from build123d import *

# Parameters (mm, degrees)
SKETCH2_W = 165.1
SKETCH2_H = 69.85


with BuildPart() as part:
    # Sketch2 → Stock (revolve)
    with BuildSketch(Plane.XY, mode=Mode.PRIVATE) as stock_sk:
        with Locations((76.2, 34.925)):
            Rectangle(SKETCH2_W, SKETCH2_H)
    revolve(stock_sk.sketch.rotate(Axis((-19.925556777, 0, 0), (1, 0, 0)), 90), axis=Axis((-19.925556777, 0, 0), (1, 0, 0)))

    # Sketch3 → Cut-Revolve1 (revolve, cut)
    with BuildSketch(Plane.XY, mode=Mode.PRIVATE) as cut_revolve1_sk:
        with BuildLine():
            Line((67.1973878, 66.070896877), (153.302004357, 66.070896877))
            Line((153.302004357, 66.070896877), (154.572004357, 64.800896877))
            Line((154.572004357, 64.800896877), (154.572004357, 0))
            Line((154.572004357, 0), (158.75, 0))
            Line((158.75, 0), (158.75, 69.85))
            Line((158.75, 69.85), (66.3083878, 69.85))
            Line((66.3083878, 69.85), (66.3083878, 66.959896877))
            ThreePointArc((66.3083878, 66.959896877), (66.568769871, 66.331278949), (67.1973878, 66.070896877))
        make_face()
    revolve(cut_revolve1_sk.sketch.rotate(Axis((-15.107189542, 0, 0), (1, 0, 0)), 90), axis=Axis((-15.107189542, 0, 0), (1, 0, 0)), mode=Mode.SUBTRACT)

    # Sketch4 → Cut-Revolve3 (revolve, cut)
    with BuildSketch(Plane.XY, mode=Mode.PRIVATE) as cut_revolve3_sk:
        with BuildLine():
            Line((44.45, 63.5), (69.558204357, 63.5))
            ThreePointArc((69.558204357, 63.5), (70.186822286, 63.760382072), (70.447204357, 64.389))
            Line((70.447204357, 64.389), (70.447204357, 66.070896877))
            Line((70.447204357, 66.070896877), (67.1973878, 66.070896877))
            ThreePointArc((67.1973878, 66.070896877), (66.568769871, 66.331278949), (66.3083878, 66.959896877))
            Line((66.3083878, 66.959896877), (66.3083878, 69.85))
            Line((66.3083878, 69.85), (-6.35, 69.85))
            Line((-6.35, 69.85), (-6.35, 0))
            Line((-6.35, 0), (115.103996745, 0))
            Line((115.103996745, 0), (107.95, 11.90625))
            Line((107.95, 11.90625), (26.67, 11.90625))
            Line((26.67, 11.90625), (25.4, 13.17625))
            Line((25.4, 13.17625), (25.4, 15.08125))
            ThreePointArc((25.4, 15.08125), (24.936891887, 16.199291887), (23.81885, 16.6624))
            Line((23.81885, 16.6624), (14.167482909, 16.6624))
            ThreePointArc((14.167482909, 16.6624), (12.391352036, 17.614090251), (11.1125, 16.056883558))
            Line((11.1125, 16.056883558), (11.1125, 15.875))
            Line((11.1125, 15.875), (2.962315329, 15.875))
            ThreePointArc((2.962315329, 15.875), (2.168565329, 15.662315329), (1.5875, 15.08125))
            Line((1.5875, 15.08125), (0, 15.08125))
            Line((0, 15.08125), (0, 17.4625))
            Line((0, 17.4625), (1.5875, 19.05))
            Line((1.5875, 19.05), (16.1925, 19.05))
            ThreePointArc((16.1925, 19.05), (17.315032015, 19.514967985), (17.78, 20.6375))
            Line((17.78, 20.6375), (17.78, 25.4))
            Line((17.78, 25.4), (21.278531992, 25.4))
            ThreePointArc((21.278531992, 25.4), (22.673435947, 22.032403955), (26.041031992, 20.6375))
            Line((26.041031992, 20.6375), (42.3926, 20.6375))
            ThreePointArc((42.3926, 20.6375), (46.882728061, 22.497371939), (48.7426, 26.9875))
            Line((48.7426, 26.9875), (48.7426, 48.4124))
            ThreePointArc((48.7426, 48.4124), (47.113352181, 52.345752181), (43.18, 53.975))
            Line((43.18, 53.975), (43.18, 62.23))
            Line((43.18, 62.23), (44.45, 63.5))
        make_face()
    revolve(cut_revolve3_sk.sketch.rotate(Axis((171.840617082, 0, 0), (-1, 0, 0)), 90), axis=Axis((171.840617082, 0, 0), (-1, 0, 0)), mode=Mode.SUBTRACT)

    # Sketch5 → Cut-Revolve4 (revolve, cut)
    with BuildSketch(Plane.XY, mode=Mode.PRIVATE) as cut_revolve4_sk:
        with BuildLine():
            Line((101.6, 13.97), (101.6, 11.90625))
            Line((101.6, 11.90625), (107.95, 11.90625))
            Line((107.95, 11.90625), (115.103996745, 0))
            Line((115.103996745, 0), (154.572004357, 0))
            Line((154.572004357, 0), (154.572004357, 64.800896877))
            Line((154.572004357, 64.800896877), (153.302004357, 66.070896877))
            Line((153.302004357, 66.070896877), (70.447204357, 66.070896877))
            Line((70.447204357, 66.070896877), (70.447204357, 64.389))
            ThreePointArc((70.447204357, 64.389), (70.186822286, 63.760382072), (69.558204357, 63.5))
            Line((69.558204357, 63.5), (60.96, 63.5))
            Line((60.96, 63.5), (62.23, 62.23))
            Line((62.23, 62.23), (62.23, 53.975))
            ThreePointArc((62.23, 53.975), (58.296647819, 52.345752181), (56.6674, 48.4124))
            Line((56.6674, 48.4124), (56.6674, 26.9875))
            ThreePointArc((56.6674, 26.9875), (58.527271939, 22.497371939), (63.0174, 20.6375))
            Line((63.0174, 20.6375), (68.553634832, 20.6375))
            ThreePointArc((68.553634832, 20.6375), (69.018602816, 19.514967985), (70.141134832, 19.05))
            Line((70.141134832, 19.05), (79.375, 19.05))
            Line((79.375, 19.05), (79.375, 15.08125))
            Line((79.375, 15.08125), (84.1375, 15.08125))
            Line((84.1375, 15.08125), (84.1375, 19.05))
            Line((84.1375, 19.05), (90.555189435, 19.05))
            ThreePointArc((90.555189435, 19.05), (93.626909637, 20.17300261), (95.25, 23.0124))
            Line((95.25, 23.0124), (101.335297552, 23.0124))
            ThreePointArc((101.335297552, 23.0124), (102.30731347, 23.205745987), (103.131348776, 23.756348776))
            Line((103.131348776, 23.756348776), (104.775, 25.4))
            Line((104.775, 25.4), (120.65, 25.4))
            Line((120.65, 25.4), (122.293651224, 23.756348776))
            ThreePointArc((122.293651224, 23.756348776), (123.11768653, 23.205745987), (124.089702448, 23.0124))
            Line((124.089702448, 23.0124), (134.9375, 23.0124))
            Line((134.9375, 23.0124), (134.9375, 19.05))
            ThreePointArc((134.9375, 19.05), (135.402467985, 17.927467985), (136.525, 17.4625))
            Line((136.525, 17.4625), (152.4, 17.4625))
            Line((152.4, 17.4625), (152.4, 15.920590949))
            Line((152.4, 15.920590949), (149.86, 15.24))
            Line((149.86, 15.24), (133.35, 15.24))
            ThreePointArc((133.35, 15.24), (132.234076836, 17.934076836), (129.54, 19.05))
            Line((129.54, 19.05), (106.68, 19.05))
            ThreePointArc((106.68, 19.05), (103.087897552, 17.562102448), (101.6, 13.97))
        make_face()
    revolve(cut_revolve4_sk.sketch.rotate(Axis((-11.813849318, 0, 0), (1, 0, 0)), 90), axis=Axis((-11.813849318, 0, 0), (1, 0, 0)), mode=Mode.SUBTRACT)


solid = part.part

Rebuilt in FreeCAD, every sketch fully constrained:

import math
import FreeCAD as App
import Part
import Sketcher
Q = App.Units.Quantity

doc = App.newDocument("Part")
body = doc.addObject("PartDesign::Body", "Body")

sketch1 = body.newObject("Sketcher::SketchObject", "Sketch")
sketch1.AttachmentSupport = (doc.getObject("XY_Plane"), [""])
sketch1.MapMode = "FlatFace"
sketch1.addGeometry([
    Part.LineSegment(App.Vector(-6, 70, 0), App.Vector(-6, 0, 0)),
    Part.LineSegment(App.Vector(-6, 0, 0), App.Vector(159, 0, 0)),
    Part.LineSegment(App.Vector(159, 0, 0), App.Vector(159, 70, 0)),
    Part.LineSegment(App.Vector(159, 70, 0), App.Vector(-6, 70, 0)),
], False)
sketch1.addConstraint([
    Sketcher.Constraint("Coincident", 0, 2, 1, 1),
    Sketcher.Constraint("Coincident", 1, 2, 2, 1),
    Sketcher.Constraint("Coincident", 2, 2, 3, 1),
    Sketcher.Constraint("Coincident", 3, 2, 0, 1),
    Sketcher.Constraint("Vertical", 0),
    Sketcher.Constraint("Horizontal", 1),
    Sketcher.Constraint("Vertical", 2),
    Sketcher.Constraint("Horizontal", 3),
    Sketcher.Constraint("PointOnObject", 0, 2, -1),
    Sketcher.Constraint("DistanceX", 1, 1, 1, 2, Q("6.5 in")),
    Sketcher.Constraint("DistanceY", 0, 2, 0, 1, Q("2.75 in")),
    Sketcher.Constraint("DistanceX", 0, 2, -1, 1, Q("0.25 in")),
])
revolution = body.newObject("PartDesign::Revolution", "Revolution")
revolution.Profile = sketch1
revolution.ReferenceAxis = (sketch1, ["H_Axis"])
revolution.Angle = 360

sketch2 = body.newObject("Sketcher::SketchObject", "Sketch001")
sketch2.AttachmentSupport = (doc.getObject("XY_Plane"), [""])
sketch2.MapMode = "FlatFace"
sketch2.addGeometry([
    Part.LineSegment(App.Vector(67.2, 66.1, 0), App.Vector(153.3, 66.1, 0)),
    Part.LineSegment(App.Vector(153.3, 66.1, 0), App.Vector(154.6, 64.8, 0)),
    Part.LineSegment(App.Vector(154.6, 64.8, 0), App.Vector(154.6, 0, 0)),
    Part.LineSegment(App.Vector(154.6, 0, 0), App.Vector(158.8, 0, 0)),
    Part.LineSegment(App.Vector(158.8, 0, 0), App.Vector(158.8, 69.8, 0)),
    Part.LineSegment(App.Vector(158.8, 69.8, 0), App.Vector(66.3, 69.8, 0)),
    Part.LineSegment(App.Vector(66.3, 69.8, 0), App.Vector(66.3, 67, 0)),
    Part.ArcOfCircle(Part.Circle(App.Vector(67.2, 67, 0), App.Vector(0, 0, 1), 0.9), math.radians(180), math.radians(270)),
], False)
sketch2.addConstraint([
    Sketcher.Constraint("Coincident", 0, 2, 1, 1),
    Sketcher.Constraint("Coincident", 1, 2, 2, 1),
    Sketcher.Constraint("Coincident", 2, 2, 3, 1),
    Sketcher.Constraint("Coincident", 3, 2, 4, 1),
    Sketcher.Constraint("Coincident", 4, 2, 5, 1),
    Sketcher.Constraint("Coincident", 5, 2, 6, 1),
    Sketcher.Constraint("Tangent", 6, 2, 7, 1),
    Sketcher.Constraint("Tangent", 7, 2, 0, 1),
    Sketcher.Constraint("Horizontal", 0),
    Sketcher.Constraint("Vertical", 2),
    Sketcher.Constraint("Horizontal", 3),
    Sketcher.Constraint("Vertical", 4),
    Sketcher.Constraint("Horizontal", 5),
    Sketcher.Constraint("Vertical", 6),
    Sketcher.Constraint("PointOnObject", 2, 2, -1),
    Sketcher.Constraint("Angle", 1, Q("-45 deg")),
    Sketcher.Constraint("Radius", 7, Q("0.035 in")),
    Sketcher.Constraint("DistanceY", 4, 1, 4, 2, Q("2.75 in")),
    Sketcher.Constraint("DistanceX", -1, 1, 3, 2, Q("6.25 in")),
    Sketcher.Constraint("DistanceX", 0, 2, 1, 2, Q("0.05 in")),
    Sketcher.Constraint("DistanceX", 0, 1, 0, 2, 86.104617),
    Sketcher.Constraint("DistanceX", 3, 1, 3, 2, 4.177996),
    Sketcher.Constraint("DistanceY", 2, 2, 2, 1, 64.800897),
])
groove = body.newObject("PartDesign::Groove", "Groove")
groove.Profile = sketch2
groove.ReferenceAxis = (sketch2, ["H_Axis"])
groove.Angle = 360

sketch3 = body.newObject("Sketcher::SketchObject", "Sketch002")
sketch3.AttachmentSupport = (doc.getObject("XY_Plane"), [""])
sketch3.MapMode = "FlatFace"
sketch3.addGeometry([
    Part.LineSegment(App.Vector(44.45, 63.5, 0), App.Vector(69.56, 63.5, 0)),
    Part.ArcOfCircle(Part.Circle(App.Vector(69.56, 64.39, 0), App.Vector(0, 0, 1), 0.89), math.radians(-90), math.radians(0)),
    Part.LineSegment(App.Vector(70.45, 64.39, 0), App.Vector(70.45, 66.07, 0)),
    Part.LineSegment(App.Vector(70.45, 66.07, 0), App.Vector(67.2, 66.07, 0)),
    Part.ArcOfCircle(Part.Circle(App.Vector(67.2, 66.96, 0), App.Vector(0, 0, 1), 0.89), math.radians(180), math.radians(270)),
    Part.LineSegment(App.Vector(66.31, 66.96, 0), App.Vector(66.31, 69.85, 0)),
    Part.LineSegment(App.Vector(66.31, 69.85, 0), App.Vector(-6.35, 69.85, 0)),
    Part.LineSegment(App.Vector(-6.35, 69.85, 0), App.Vector(-6.35, 0, 0)),
    Part.LineSegment(App.Vector(-6.35, 0, 0), App.Vector(115.1, 0, 0)),
    Part.LineSegment(App.Vector(115.1, 0, 0), App.Vector(107.95, 11.91, 0)),
    Part.LineSegment(App.Vector(107.95, 11.91, 0), App.Vector(26.67, 11.91, 0)),
    Part.LineSegment(App.Vector(26.67, 11.91, 0), App.Vector(25.4, 13.18, 0)),
    Part.LineSegment(App.Vector(25.4, 13.18, 0), App.Vector(25.4, 15.08, 0)),
    Part.ArcOfCircle(Part.Circle(App.Vector(23.82, 15.08, 0), App.Vector(0, 0, 1), 1.58), math.radians(0), math.radians(90)),
    Part.LineSegment(App.Vector(23.82, 16.66, 0), App.Vector(14.17, 16.66, 0)),
    Part.ArcOfCircle(Part.Circle(App.Vector(12.7, 16.06, 0), App.Vector(0, 0, 1), 1.59), math.radians(22), math.radians(180)),
    Part.LineSegment(App.Vector(11.11, 16.06, 0), App.Vector(11.11, 15.88, 0)),
    Part.LineSegment(App.Vector(11.11, 15.88, 0), App.Vector(2.96, 15.88, 0)),
    Part.ArcOfCircle(Part.Circle(App.Vector(2.96, 14.29, 0), App.Vector(0, 0, 1), 1.59), math.radians(90), math.radians(150)),
    Part.LineSegment(App.Vector(1.59, 15.08, 0), App.Vector(0, 15.08, 0)),
    Part.LineSegment(App.Vector(0, 15.08, 0), App.Vector(0, 17.46, 0)),
    Part.LineSegment(App.Vector(0, 17.46, 0), App.Vector(1.59, 19.05, 0)),
    Part.LineSegment(App.Vector(1.59, 19.05, 0), App.Vector(16.19, 19.05, 0)),
    Part.ArcOfCircle(Part.Circle(App.Vector(16.19, 20.64, 0), App.Vector(0, 0, 1), 1.59), math.radians(-90), math.radians(0)),
    Part.LineSegment(App.Vector(17.78, 20.64, 0), App.Vector(17.78, 25.4, 0)),
    Part.LineSegment(App.Vector(17.78, 25.4, 0), App.Vector(21.28, 25.4, 0)),
    Part.ArcOfCircle(Part.Circle(App.Vector(26.04, 25.4, 0), App.Vector(0, 0, 1), 4.76), math.radians(-180), math.radians(-90)),
    Part.LineSegment(App.Vector(26.04, 20.64, 0), App.Vector(42.39, 20.64, 0)),
    Part.ArcOfCircle(Part.Circle(App.Vector(42.39, 26.99, 0), App.Vector(0, 0, 1), 6.35), math.radians(-90), math.radians(0)),
    Part.LineSegment(App.Vector(48.74, 26.99, 0), App.Vector(48.74, 48.41, 0)),
    Part.ArcOfCircle(Part.Circle(App.Vector(43.18, 48.41, 0), App.Vector(0, 0, 1), 5.56), math.radians(0), math.radians(90)),
    Part.LineSegment(App.Vector(43.18, 53.98, 0), App.Vector(43.18, 62.23, 0)),
    Part.LineSegment(App.Vector(43.18, 62.23, 0), App.Vector(44.45, 63.5, 0)),
], False)
sketch3.addConstraint([
    Sketcher.Constraint("Tangent", 0, 2, 1, 1),
    Sketcher.Constraint("Tangent", 1, 2, 2, 1),
    Sketcher.Constraint("Coincident", 2, 2, 3, 1),
    Sketcher.Constraint("Tangent", 3, 2, 4, 2),
    Sketcher.Constraint("Tangent", 4, 1, 5, 1),
    Sketcher.Constraint("Coincident", 5, 2, 6, 1),
    Sketcher.Constraint("Coincident", 6, 2, 7, 1),
    Sketcher.Constraint("Coincident", 7, 2, 8, 1),
    Sketcher.Constraint("Coincident", 8, 2, 9, 1),
    Sketcher.Constraint("Coincident", 9, 2, 10, 1),
    Sketcher.Constraint("Coincident", 10, 2, 11, 1),
    Sketcher.Constraint("Coincident", 11, 2, 12, 1),
    Sketcher.Constraint("Tangent", 12, 2, 13, 1),
    Sketcher.Constraint("Tangent", 13, 2, 14, 1),
    Sketcher.Constraint("Coincident", 14, 2, 15, 1),
    Sketcher.Constraint("Tangent", 15, 2, 16, 1),
    Sketcher.Constraint("Coincident", 16, 2, 17, 1),
    Sketcher.Constraint("Tangent", 17, 2, 18, 1),
    Sketcher.Constraint("Coincident", 18, 2, 19, 1),
    Sketcher.Constraint("Coincident", 19, 2, 20, 1),
    Sketcher.Constraint("Coincident", 20, 2, 21, 1),
    Sketcher.Constraint("Coincident", 21, 2, 22, 1),
    Sketcher.Constraint("Tangent", 22, 2, 23, 1),
    Sketcher.Constraint("Tangent", 23, 2, 24, 1),
    Sketcher.Constraint("Coincident", 24, 2, 25, 1),
    Sketcher.Constraint("Coincident", 25, 2, 26, 1),
    Sketcher.Constraint("Tangent", 26, 2, 27, 1),
    Sketcher.Constraint("Tangent", 27, 2, 28, 1),
    Sketcher.Constraint("Tangent", 28, 2, 29, 1),
    Sketcher.Constraint("Tangent", 29, 2, 30, 1),
    Sketcher.Constraint("Coincident", 30, 2, 31, 1),
    Sketcher.Constraint("Coincident", 31, 2, 32, 1),
    Sketcher.Constraint("Coincident", 32, 2, 0, 1),
    Sketcher.Constraint("Horizontal", 0),
    Sketcher.Constraint("Vertical", 2),
    Sketcher.Constraint("Horizontal", 3),
    Sketcher.Constraint("Vertical", 5),
    Sketcher.Constraint("Horizontal", 6),
    Sketcher.Constraint("Vertical", 7),
    Sketcher.Constraint("Horizontal", 8),
    Sketcher.Constraint("Horizontal", 10),
    Sketcher.Constraint("Vertical", 12),
    Sketcher.Constraint("Horizontal", 14),
    Sketcher.Constraint("Vertical", 16),
    Sketcher.Constraint("Horizontal", 17),
    Sketcher.Constraint("Horizontal", 19),
    Sketcher.Constraint("Vertical", 20),
    Sketcher.Constraint("Horizontal", 22),
    Sketcher.Constraint("Vertical", 24),
    Sketcher.Constraint("Horizontal", 25),
    Sketcher.Constraint("Horizontal", 27),
    Sketcher.Constraint("Vertical", 29),
    Sketcher.Constraint("Vertical", 31),
    Sketcher.Constraint("Equal", 1, 4),
    Sketcher.Constraint("Equal", 15, 18),
    Sketcher.Constraint("Equal", 18, 23),
    Sketcher.Constraint("PointOnObject", 7, 2, -1),
    Sketcher.Constraint("PointOnObject", 19, 2, -2),
    Sketcher.Constraint("Perpendicular", 11, 21),
    Sketcher.Constraint("Parallel", 21, 32),
    Sketcher.Constraint("Horizontal", 12, 2, 18, 2),
    Sketcher.Constraint("Horizontal", 26, 3, 24, 2),
    Sketcher.Constraint("Horizontal", 23, 2, 26, 2),
    Sketcher.Constraint("Vertical", 18, 2, 21, 2),
    Sketcher.Constraint("Equal", 11, 32),
    Sketcher.Constraint("Radius", 28, Q("0.25 in")),
    Sketcher.Constraint("DistanceX", 10, 2, 10, 1, Q("3.2 in")),
    Sketcher.Constraint("DistanceY", -1, 1, 26, 3, Q("1 in")),
    Sketcher.Constraint("DistanceX", -1, 1, 11, 2, Q("1 in")),
    Sketcher.Constraint("Angle", 9, Q("121 deg")),
    Sketcher.Constraint("Angle", 11, Q("135 deg")),
    Sketcher.Constraint("Radius", 1, Q("0.035 in")),
    Sketcher.Constraint("Radius", 15, Q("0.0625 in")),
    Sketcher.Constraint("Radius", 26, Q("0.1875 in")),
    Sketcher.Constraint("Radius", 30, Q("0.219 in")),
    Sketcher.Constraint("DistanceY", 7, 2, 7, 1, Q("2.75 in")),
    Sketcher.Constraint("DistanceX", -1, 1, 15, 3, Q("0.5 in")),
    Sketcher.Constraint("DistanceX", -1, 1, 30, 3, Q("1.7 in")),
    Sketcher.Constraint("DistanceY", -1, 1, 0, 2, Q("2.5 in")),
    Sketcher.Constraint("DistanceX", -1, 1, 23, 2, Q("0.7 in")),
    Sketcher.Constraint("DistanceX", -1, 1, 30, 2, Q("1.7 in")),
    Sketcher.Constraint("DistanceY", 18, 3, 28, 3, Q("0.5 in")),
    Sketcher.Constraint("DistanceX", 19, 2, 19, 1, Q("0.0625 in")),
    Sketcher.Constraint("DistanceY", 12, 1, 12, 2, Q("0.075 in")),
    Sketcher.Constraint("DistanceY", 20, 1, 20, 2, Q("0.09375 in")),
    Sketcher.Constraint("DistanceY", 31, 1, 31, 2, Q("0.325 in")),
    Sketcher.Constraint("DistanceX", 6, 2, -1, 1, Q("0.25 in")),
    Sketcher.Constraint("DistanceX", -1, 1, 9, 2, Q("4.25 in")),
    Sketcher.Constraint("DistanceY", -1, 1, 13, 2, Q("0.656 in")),
    Sketcher.Constraint("DistanceX", 25, 1, 25, 2, 3.498532),
    Sketcher.Constraint("DistanceX", 0, 1, 0, 2, 25.108204),
    Sketcher.Constraint("DistanceX", 3, 2, 3, 1, 3.249817),
    Sketcher.Constraint("DistanceX", 14, 2, 14, 1, 9.651367),
    Sketcher.Constraint("DistanceY", 2, 1, 2, 2, 1.681897),
])
groove2 = body.newObject("PartDesign::Groove", "Groove001")
groove2.Profile = sketch3
groove2.ReferenceAxis = (sketch3, ["H_Axis"])
groove2.Angle = 360

sketch4 = body.newObject("Sketcher::SketchObject", "Sketch003")
sketch4.AttachmentSupport = (doc.getObject("XY_Plane"), [""])
sketch4.MapMode = "FlatFace"
sketch4.addGeometry([
    Part.LineSegment(App.Vector(101.6, 14, 0), App.Vector(101.6, 11.9, 0)),
    Part.LineSegment(App.Vector(101.6, 11.9, 0), App.Vector(108, 11.9, 0)),
    Part.LineSegment(App.Vector(108, 11.9, 0), App.Vector(115.1, 0, 0)),
    Part.LineSegment(App.Vector(115.1, 0, 0), App.Vector(154.6, 0, 0)),
    Part.LineSegment(App.Vector(154.6, 0, 0), App.Vector(154.6, 64.8, 0)),
    Part.LineSegment(App.Vector(154.6, 64.8, 0), App.Vector(153.3, 66.1, 0)),
    Part.LineSegment(App.Vector(153.3, 66.1, 0), App.Vector(70.4, 66.1, 0)),
    Part.LineSegment(App.Vector(70.4, 66.1, 0), App.Vector(70.4, 64.4, 0)),
    Part.ArcOfCircle(Part.Circle(App.Vector(69.6, 64.4, 0), App.Vector(0, 0, 1), 0.9), math.radians(-90), math.radians(0)),
    Part.LineSegment(App.Vector(69.6, 63.5, 0), App.Vector(61, 63.5, 0)),
    Part.LineSegment(App.Vector(61, 63.5, 0), App.Vector(62.2, 62.2, 0)),
    Part.LineSegment(App.Vector(62.2, 62.2, 0), App.Vector(62.2, 54, 0)),
    Part.ArcOfCircle(Part.Circle(App.Vector(62.2, 48.4, 0), App.Vector(0, 0, 1), 5.6), math.radians(90), math.radians(180)),
    Part.LineSegment(App.Vector(56.7, 48.4, 0), App.Vector(56.7, 27, 0)),
    Part.ArcOfCircle(Part.Circle(App.Vector(63, 27, 0), App.Vector(0, 0, 1), 6.3), math.radians(180), math.radians(270)),
    Part.LineSegment(App.Vector(63, 20.6, 0), App.Vector(68.6, 20.6, 0)),
    Part.ArcOfCircle(Part.Circle(App.Vector(70.1, 20.6, 0), App.Vector(0, 0, 1), 1.6), math.radians(180), math.radians(270)),
    Part.LineSegment(App.Vector(70.1, 19.1, 0), App.Vector(79.4, 19.1, 0)),
    Part.LineSegment(App.Vector(79.4, 19.1, 0), App.Vector(79.4, 15.1, 0)),
    Part.LineSegment(App.Vector(79.4, 15.1, 0), App.Vector(84.1, 15.1, 0)),
    Part.LineSegment(App.Vector(84.1, 15.1, 0), App.Vector(84.1, 19.1, 0)),
    Part.LineSegment(App.Vector(84.1, 19.1, 0), App.Vector(90.6, 19.1, 0)),
    Part.ArcOfCircle(Part.Circle(App.Vector(90.6, 23.8, 0), App.Vector(0, 0, 1), 4.8), math.radians(-90), math.radians(-10)),
    Part.LineSegment(App.Vector(95.2, 23, 0), App.Vector(101.3, 23, 0)),
    Part.ArcOfCircle(Part.Circle(App.Vector(101.3, 25.6, 0), App.Vector(0, 0, 1), 2.5), math.radians(-90), math.radians(-45)),
    Part.LineSegment(App.Vector(103.1, 23.8, 0), App.Vector(104.8, 25.4, 0)),
    Part.LineSegment(App.Vector(104.8, 25.4, 0), App.Vector(120.7, 25.4, 0)),
    Part.LineSegment(App.Vector(120.7, 25.4, 0), App.Vector(122.3, 23.8, 0)),
    Part.ArcOfCircle(Part.Circle(App.Vector(124.1, 25.6, 0), App.Vector(0, 0, 1), 2.5), math.radians(-135), math.radians(-90)),
    Part.LineSegment(App.Vector(124.1, 23, 0), App.Vector(134.9, 23, 0)),
    Part.LineSegment(App.Vector(134.9, 23, 0), App.Vector(134.9, 19.1, 0)),
    Part.ArcOfCircle(Part.Circle(App.Vector(136.5, 19.1, 0), App.Vector(0, 0, 1), 1.6), math.radians(180), math.radians(270)),
    Part.LineSegment(App.Vector(136.5, 17.5, 0), App.Vector(152.4, 17.5, 0)),
    Part.LineSegment(App.Vector(152.4, 17.5, 0), App.Vector(152.4, 15.9, 0)),
    Part.LineSegment(App.Vector(152.4, 15.9, 0), App.Vector(149.9, 15.2, 0)),
    Part.LineSegment(App.Vector(149.9, 15.2, 0), App.Vector(133.3, 15.2, 0)),
    Part.ArcOfCircle(Part.Circle(App.Vector(129.5, 15.2, 0), App.Vector(0, 0, 1), 3.8), math.radians(0), math.radians(90)),
    Part.LineSegment(App.Vector(129.5, 19.1, 0), App.Vector(106.7, 19.1, 0)),
    Part.ArcOfCircle(Part.Circle(App.Vector(106.7, 14, 0), App.Vector(0, 0, 1), 5.1), math.radians(90), math.radians(180)),
], False)
sketch4.addConstraint([
    Sketcher.Constraint("Coincident", 0, 2, 1, 1),
    Sketcher.Constraint("Coincident", 1, 2, 2, 1),
    Sketcher.Constraint("Coincident", 2, 2, 3, 1),
    Sketcher.Constraint("Coincident", 3, 2, 4, 1),
    Sketcher.Constraint("Coincident", 4, 2, 5, 1),
    Sketcher.Constraint("Coincident", 5, 2, 6, 1),
    Sketcher.Constraint("Coincident", 6, 2, 7, 1),
    Sketcher.Constraint("Tangent", 7, 2, 8, 2),
    Sketcher.Constraint("Tangent", 8, 1, 9, 1),
    Sketcher.Constraint("Coincident", 9, 2, 10, 1),
    Sketcher.Constraint("Coincident", 10, 2, 11, 1),
    Sketcher.Constraint("Coincident", 11, 2, 12, 1),
    Sketcher.Constraint("Tangent", 12, 2, 13, 1),
    Sketcher.Constraint("Tangent", 13, 2, 14, 1),
    Sketcher.Constraint("Tangent", 14, 2, 15, 1),
    Sketcher.Constraint("Coincident", 15, 2, 16, 1),
    Sketcher.Constraint("Tangent", 16, 2, 17, 1),
    Sketcher.Constraint("Coincident", 17, 2, 18, 1),
    Sketcher.Constraint("Coincident", 18, 2, 19, 1),
    Sketcher.Constraint("Coincident", 19, 2, 20, 1),
    Sketcher.Constraint("Coincident", 20, 2, 21, 1),
    Sketcher.Constraint("Tangent", 21, 2, 22, 1),
    Sketcher.Constraint("Coincident", 22, 2, 23, 1),
    Sketcher.Constraint("Tangent", 23, 2, 24, 1),
    Sketcher.Constraint("Tangent", 24, 2, 25, 1),
    Sketcher.Constraint("Coincident", 25, 2, 26, 1),
    Sketcher.Constraint("Coincident", 26, 2, 27, 1),
    Sketcher.Constraint("Tangent", 27, 2, 28, 1),
    Sketcher.Constraint("Tangent", 28, 2, 29, 1),
    Sketcher.Constraint("Coincident", 29, 2, 30, 1),
    Sketcher.Constraint("Tangent", 30, 2, 31, 1),
    Sketcher.Constraint("Tangent", 31, 2, 32, 1),
    Sketcher.Constraint("Coincident", 32, 2, 33, 1),
    Sketcher.Constraint("Coincident", 33, 2, 34, 1),
    Sketcher.Constraint("Coincident", 34, 2, 35, 1),
    Sketcher.Constraint("Coincident", 35, 2, 36, 1),
    Sketcher.Constraint("Tangent", 36, 2, 37, 1),
    Sketcher.Constraint("Tangent", 37, 2, 38, 1),
    Sketcher.Constraint("Tangent", 38, 2, 0, 1),
    Sketcher.Constraint("Vertical", 0),
    Sketcher.Constraint("Horizontal", 1),
    Sketcher.Constraint("Horizontal", 3),
    Sketcher.Constraint("Vertical", 4),
    Sketcher.Constraint("Horizontal", 6),
    Sketcher.Constraint("Vertical", 7),
    Sketcher.Constraint("Horizontal", 9),
    Sketcher.Constraint("Vertical", 11),
    Sketcher.Constraint("Vertical", 13),
    Sketcher.Constraint("Horizontal", 15),
    Sketcher.Constraint("Horizontal", 17),
    Sketcher.Constraint("Vertical", 18),
    Sketcher.Constraint("Horizontal", 19),
    Sketcher.Constraint("Vertical", 20),
    Sketcher.Constraint("Horizontal", 21),
    Sketcher.Constraint("Horizontal", 23),
    Sketcher.Constraint("Horizontal", 26),
    Sketcher.Constraint("Horizontal", 29),
    Sketcher.Constraint("Vertical", 30),
    Sketcher.Constraint("Horizontal", 32),
    Sketcher.Constraint("Vertical", 33),
    Sketcher.Constraint("Horizontal", 35),
    Sketcher.Constraint("Horizontal", 37),
    Sketcher.Constraint("Equal", 24, 28),
    Sketcher.Constraint("Equal", 16, 31),
    Sketcher.Constraint("PointOnObject", 2, 2, -1),
    Sketcher.Constraint("Parallel", 5, 10),
    Sketcher.Constraint("Perpendicular", 10, 25),
    Sketcher.Constraint("Perpendicular", 25, 27),
    Sketcher.Constraint("Horizontal", 24, 3, 28, 3),
    Sketcher.Constraint("Horizontal", 16, 3, 14, 2),
    Sketcher.Constraint("Horizontal", 31, 3, 16, 2),
    Sketcher.Constraint("Horizontal", 17, 2, 20, 2),
    Sketcher.Constraint("Horizontal", 24, 2, 27, 2),
    Sketcher.Constraint("Horizontal", 36, 3, 34, 2),
    Sketcher.Constraint("Horizontal", 30, 2, 36, 2),
    Sketcher.Constraint("Vertical", 12, 3, 10, 2),
    Sketcher.Constraint("Equal", 26, 32),
    Sketcher.Constraint("Equal", 5, 10),
    Sketcher.Constraint("Radius", 24, Q("0.1 in")),
    Sketcher.Constraint("Radius", 38, Q("0.2 in")),
    Sketcher.Constraint("Radius", 14, Q("0.25 in")),
    Sketcher.Constraint("Radius", 36, Q("0.15 in")),
    Sketcher.Constraint("DistanceX", 37, 2, 37, 1, Q("0.9 in")),
    Sketcher.Constraint("DistanceX", -1, 1, 0, 2, Q("4 in")),
    Sketcher.Constraint("DistanceY", -1, 1, 25, 2, Q("1 in")),
    Sketcher.Constraint("DistanceX", -1, 1, 32, 2, Q("6 in")),
    Sketcher.Constraint("Angle", 2, Q("-59 deg")),
    Sketcher.Constraint("Angle", 34, Q("-165 deg")),
    Sketcher.Constraint("Radius", 8, Q("0.035 in")),
    Sketcher.Constraint("Radius", 12, Q("0.219 in")),
    Sketcher.Constraint("Radius", 16, Q("0.0625 in")),
    Sketcher.Constraint("Radius", 22, Q("0.1875 in")),
    Sketcher.Constraint("DistanceX", 1, 1, 1, 2, Q("0.25 in")),
    Sketcher.Constraint("DistanceX", 35, 2, 35, 1, Q("0.65 in")),
    Sketcher.Constraint("DistanceY", -1, 1, 36, 3, Q("0.6 in")),
    Sketcher.Constraint("DistanceY", -1, 1, 8, 1, Q("2.5 in")),
    Sketcher.Constraint("DistanceX", -1, 1, 9, 2, Q("2.4 in")),
    Sketcher.Constraint("DistanceY", 24, 3, 12, 3, Q("0.9 in")),
    Sketcher.Constraint("DistanceX", 6, 2, 6, 1, Q("3.262 in")),
    Sketcher.Constraint("DistanceX", 19, 1, 19, 2, Q("0.1875 in")),
    Sketcher.Constraint("DistanceX", 26, 1, 26, 2, Q("0.625 in")),
    Sketcher.Constraint("DistanceY", 11, 2, 11, 1, Q("0.325 in")),
    Sketcher.Constraint("DistanceY", 18, 2, 18, 1, Q("0.15625 in")),
    Sketcher.Constraint("DistanceY", 30, 2, 30, 1, Q("0.156 in")),
    Sketcher.Constraint("DistanceX", -1, 1, 22, 2, Q("3.75 in")),
    Sketcher.Constraint("DistanceX", -1, 1, 26, 2, Q("4.75 in")),
    Sketcher.Constraint("DistanceY", -1, 1, 0, 2, Q("0.46875 in")),
    Sketcher.Constraint("DistanceX", -1, 1, 17, 2, Q("3.125 in")),
    Sketcher.Constraint("DistanceX", 28, 3, 3, 2, 30.482302),
    Sketcher.Constraint("DistanceX", 15, 1, 15, 2, 5.536235),
    Sketcher.Constraint("DistanceY", 4, 1, 4, 2, 64.800897),
])
groove3 = body.newObject("PartDesign::Groove", "Groove002")
groove3.Profile = sketch4
groove3.ReferenceAxis = (sketch4, ["H_Axis"])
groove3.Angle = 360

doc.recompute()
